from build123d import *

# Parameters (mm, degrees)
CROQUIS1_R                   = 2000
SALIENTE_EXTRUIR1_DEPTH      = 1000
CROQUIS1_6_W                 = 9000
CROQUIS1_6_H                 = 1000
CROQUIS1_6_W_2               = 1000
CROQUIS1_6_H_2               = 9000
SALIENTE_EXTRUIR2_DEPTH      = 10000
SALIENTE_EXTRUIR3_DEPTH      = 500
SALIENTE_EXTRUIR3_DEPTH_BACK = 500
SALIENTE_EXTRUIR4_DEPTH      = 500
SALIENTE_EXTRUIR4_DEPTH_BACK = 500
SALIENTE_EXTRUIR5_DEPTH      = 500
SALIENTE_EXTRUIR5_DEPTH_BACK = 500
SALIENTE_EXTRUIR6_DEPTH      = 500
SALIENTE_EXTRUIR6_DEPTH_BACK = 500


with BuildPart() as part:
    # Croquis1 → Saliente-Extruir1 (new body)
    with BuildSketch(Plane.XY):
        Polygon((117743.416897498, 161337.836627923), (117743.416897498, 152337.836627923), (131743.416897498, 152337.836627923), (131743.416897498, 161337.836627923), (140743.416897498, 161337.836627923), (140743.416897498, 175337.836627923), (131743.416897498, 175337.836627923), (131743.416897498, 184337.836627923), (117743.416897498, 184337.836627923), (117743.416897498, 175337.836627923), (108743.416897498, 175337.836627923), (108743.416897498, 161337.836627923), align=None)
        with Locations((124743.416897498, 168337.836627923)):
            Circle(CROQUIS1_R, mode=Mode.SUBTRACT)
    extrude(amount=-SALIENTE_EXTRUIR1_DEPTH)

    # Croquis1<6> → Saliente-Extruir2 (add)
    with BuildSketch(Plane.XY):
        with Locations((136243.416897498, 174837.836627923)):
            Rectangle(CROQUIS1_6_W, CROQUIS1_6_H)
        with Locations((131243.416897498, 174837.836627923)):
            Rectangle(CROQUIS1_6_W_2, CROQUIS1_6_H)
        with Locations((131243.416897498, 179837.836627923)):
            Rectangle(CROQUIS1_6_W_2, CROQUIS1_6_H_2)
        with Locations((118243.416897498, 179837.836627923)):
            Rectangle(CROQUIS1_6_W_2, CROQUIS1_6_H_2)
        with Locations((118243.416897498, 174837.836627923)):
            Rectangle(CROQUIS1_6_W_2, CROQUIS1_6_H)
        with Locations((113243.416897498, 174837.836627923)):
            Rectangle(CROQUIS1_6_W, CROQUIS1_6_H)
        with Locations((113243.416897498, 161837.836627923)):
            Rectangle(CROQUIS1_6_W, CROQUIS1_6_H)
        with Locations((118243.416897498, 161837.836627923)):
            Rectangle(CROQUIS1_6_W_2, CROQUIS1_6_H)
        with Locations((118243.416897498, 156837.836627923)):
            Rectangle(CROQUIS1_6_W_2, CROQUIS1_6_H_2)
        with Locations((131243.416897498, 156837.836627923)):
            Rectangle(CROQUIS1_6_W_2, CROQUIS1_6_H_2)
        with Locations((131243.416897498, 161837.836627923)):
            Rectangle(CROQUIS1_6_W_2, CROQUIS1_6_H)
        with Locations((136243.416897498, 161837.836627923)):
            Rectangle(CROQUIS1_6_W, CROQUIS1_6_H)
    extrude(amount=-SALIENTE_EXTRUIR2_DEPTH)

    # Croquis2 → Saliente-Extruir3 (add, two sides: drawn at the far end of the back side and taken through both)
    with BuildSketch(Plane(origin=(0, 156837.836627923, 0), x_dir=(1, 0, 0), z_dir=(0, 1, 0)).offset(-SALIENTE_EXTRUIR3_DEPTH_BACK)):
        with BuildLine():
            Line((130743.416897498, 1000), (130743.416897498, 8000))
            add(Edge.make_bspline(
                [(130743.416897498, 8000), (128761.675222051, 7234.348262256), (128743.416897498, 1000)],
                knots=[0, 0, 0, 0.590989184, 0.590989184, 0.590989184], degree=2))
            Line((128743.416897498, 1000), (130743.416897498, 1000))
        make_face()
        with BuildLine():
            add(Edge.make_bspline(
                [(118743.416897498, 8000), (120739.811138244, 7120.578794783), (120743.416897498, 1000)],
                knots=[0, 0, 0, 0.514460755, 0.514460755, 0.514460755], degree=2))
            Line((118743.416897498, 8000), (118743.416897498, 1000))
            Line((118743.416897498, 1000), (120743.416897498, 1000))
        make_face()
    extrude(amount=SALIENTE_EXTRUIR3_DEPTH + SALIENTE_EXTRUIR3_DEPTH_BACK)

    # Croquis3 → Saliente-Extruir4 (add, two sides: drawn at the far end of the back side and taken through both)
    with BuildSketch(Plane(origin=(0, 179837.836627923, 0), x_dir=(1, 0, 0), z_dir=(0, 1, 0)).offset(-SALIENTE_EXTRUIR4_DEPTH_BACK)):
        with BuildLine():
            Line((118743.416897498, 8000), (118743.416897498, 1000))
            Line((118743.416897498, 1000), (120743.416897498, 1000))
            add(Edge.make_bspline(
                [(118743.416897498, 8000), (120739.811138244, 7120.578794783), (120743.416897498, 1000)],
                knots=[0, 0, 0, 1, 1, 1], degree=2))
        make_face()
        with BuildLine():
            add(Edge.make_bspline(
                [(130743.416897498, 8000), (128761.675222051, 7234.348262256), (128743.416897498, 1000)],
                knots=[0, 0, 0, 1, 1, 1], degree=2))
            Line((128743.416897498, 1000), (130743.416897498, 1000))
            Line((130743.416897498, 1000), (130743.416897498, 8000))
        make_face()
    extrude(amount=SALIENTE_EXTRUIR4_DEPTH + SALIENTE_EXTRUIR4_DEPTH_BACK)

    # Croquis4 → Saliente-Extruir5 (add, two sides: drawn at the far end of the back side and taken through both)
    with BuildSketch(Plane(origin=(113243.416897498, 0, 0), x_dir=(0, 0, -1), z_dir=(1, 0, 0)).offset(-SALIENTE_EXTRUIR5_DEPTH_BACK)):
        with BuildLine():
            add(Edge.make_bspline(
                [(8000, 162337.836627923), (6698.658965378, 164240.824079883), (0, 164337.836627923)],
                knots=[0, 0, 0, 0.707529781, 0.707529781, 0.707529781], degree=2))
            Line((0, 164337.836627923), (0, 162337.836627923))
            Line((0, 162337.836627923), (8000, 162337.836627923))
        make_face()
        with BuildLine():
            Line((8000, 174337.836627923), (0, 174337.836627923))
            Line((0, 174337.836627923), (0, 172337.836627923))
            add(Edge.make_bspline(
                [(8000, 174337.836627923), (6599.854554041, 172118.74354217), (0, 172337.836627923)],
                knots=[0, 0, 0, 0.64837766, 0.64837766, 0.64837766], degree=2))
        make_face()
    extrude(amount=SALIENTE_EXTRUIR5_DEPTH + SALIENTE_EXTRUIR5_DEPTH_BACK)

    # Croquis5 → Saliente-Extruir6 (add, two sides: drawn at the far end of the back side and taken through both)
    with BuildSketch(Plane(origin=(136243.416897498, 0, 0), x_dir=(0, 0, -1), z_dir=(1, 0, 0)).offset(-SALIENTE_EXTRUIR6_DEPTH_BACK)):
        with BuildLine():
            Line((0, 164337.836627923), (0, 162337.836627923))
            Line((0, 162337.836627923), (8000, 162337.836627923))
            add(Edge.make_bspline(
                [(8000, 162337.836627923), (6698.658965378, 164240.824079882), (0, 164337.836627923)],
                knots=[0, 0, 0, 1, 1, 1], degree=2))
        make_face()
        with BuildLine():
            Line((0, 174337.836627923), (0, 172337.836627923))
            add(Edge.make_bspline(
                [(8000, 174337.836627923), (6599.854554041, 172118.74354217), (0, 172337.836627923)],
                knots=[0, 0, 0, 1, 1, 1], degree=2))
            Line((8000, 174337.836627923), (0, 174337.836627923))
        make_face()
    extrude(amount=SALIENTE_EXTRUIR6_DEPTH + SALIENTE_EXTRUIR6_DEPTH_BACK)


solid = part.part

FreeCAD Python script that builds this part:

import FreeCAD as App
import Part
import Sketcher

V = App.Vector


def add_polygon(sketch, points):
    """Adds a closed chain of lines whose ends are joined by coincident constraints."""
    first, n = sketch.GeometryCount, len(points)
    for a, b in zip(points, points[1:] + points[:1]):
        sketch.addGeometry(Part.LineSegment(App.Vector(*a, 0), App.Vector(*b, 0)), False)
    for i in range(n):
        sketch.addConstraint(Sketcher.Constraint("Coincident", first + i, 2, first + (i + 1) % n, 1))

doc = App.newDocument("Part")
body = doc.addObject("PartDesign::Body", "Body")

sketch1 = doc.addObject("Sketcher::SketchObject", "Sketch")
body.addObject(sketch1)
sketch1.AttachmentSupport = (doc.XY_Plane, [""])
sketch1.MapMode = "FlatFace"
add_polygon(sketch1, [(117743.416897, 161337.836628), (117743.416897, 152337.836628), (131743.416897, 152337.836628), (131743.416897, 161337.836628), (140743.416897, 161337.836628), (140743.416897, 175337.836628), (131743.416897, 175337.836628), (131743.416897, 184337.836628), (117743.416897, 184337.836628), (117743.416897, 175337.836628), (108743.416897, 175337.836628), (108743.416897, 161337.836628)])
sketch1.addGeometry(Part.Circle(V(124743.416897, 168337.836628, 0), V(0, 0, 1), 2000), False)
sketch1.addConstraint([
    Sketcher.Constraint("Vertical", 0),
    Sketcher.Constraint("Horizontal", 1),
    Sketcher.Constraint("Vertical", 2),
    Sketcher.Constraint("Horizontal", 3),
    Sketcher.Constraint("Vertical", 4),
    Sketcher.Constraint("Horizontal", 5),
    Sketcher.Constraint("Vertical", 6),
    Sketcher.Constraint("Horizontal", 7),
    Sketcher.Constraint("Vertical", 8),
    Sketcher.Constraint("Horizontal", 9),
    Sketcher.Constraint("Vertical", 10),
    Sketcher.Constraint("Horizontal", 11),
    Sketcher.Constraint("Horizontal", 5, 2, 8, 2),
    Sketcher.Constraint("Horizontal", 3, 2, 10, 2),
    Sketcher.Constraint("Vertical", 2, 2, 5, 2),
    Sketcher.Constraint("Vertical", 0, 2, 7, 2),
    Sketcher.Constraint("Equal", 5, 9),
    Sketcher.Constraint("Equal", 11, 0),
    Sketcher.Constraint("Equal", 7, 4),
    Sketcher.Constraint("Equal", 2, 6),
    Sketcher.Constraint("Diameter", 12, 4000.0),
    Sketcher.Constraint("DistanceX", 1, 1, 1, 2, 14000.0),
    Sketcher.Constraint("DistanceX", 3, 1, 3, 2, 9000.0),
    Sketcher.Constraint("DistanceX", 0, 2, 12, 3, 7000.0),
    Sketcher.Constraint("DistanceY", 0, 2, 12, 3, 16000.0),
    Sketcher.Constraint("DistanceX", -1, 1, 12, 3, 124743.416897),
    Sketcher.Constraint("DistanceY", -1, 1, 12, 3, 168337.836628),
])
pad1 = doc.addObject("PartDesign::Pad", "Pad")
body.addObject(pad1)
pad1.Profile = sketch1
pad1.Length = 1000
pad1.Reversed = True

sketch2 = doc.addObject("Sketcher::SketchObject", "Sketch001")
body.addObject(sketch2)
sketch2.AttachmentSupport = (doc.XY_Plane, [""])
sketch2.MapMode = "FlatFace"
add_polygon(sketch2, [(140743.416897, 174337.836628), (140743.416897, 175337.836628), (131743.416897, 175337.836628), (131743.416897, 184337.836628), (130743.416897, 184337.836628), (130743.416897, 174337.836628)])
add_polygon(sketch2, [(117743.416897, 184337.836628), (117743.416897, 175337.836628), (108743.416897, 175337.836628), (108743.416897, 174337.836628), (118743.416897, 174337.836628), (118743.416897, 184337.836628)])
add_polygon(sketch2, [(108743.416897, 162337.836628), (108743.416897, 161337.836628), (117743.416897, 161337.836628), (117743.416897, 152337.836628), (118743.416897, 152337.836628), (118743.416897, 162337.836628)])
add_polygon(sketch2, [(130743.416897, 152337.836628), (131743.416897, 152337.836628), (131743.416897, 161337.836628), (140743.416897, 161337.836628), (140743.416897, 162337.836628), (130743.416897, 162337.836628)])
sketch2.addConstraint([
    Sketcher.Constraint("Vertical", 0),
    Sketcher.Constraint("Horizontal", 1),
    Sketcher.Constraint("Vertical", 2),
    Sketcher.Constraint("Horizontal", 3),
    Sketcher.Constraint("Vertical", 4),
    Sketcher.Constraint("Horizontal", 5),
    Sketcher.Constraint("Vertical", 6),
    Sketcher.Constraint("Horizontal", 7),
    Sketcher.Constraint("Vertical", 8),
    Sketcher.Constraint("Horizontal", 9),
    Sketcher.Constraint("Vertical", 10),
    Sketcher.Constraint("Horizontal", 11),
    Sketcher.Constraint("Vertical", 12),
    Sketcher.Constraint("Horizontal", 13),
    Sketcher.Constraint("Vertical", 14),
    Sketcher.Constraint("Horizontal", 15),
    Sketcher.Constraint("Vertical", 16),
    Sketcher.Constraint("Horizontal", 17),
    Sketcher.Constraint("Horizontal", 18),
    Sketcher.Constraint("Vertical", 19),
    Sketcher.Constraint("Horizontal", 20),
    Sketcher.Constraint("Vertical", 21),
    Sketcher.Constraint("Horizontal", 22),
    Sketcher.Constraint("Vertical", 23),
    Sketcher.Constraint("Horizontal", 1, 2, 6, 2),
    Sketcher.Constraint("Horizontal", 5, 2, 8, 2),
    Sketcher.Constraint("Horizontal", 3, 2, 10, 2),
    Sketcher.Constraint("Horizontal", 15, 2, 18, 2),
    Sketcher.Constraint("Horizontal", 13, 2, 19, 2),
    Sketcher.Constraint("Horizontal", 17, 2, 21, 2),
    Sketcher.Constraint("Vertical", 8, 2, 12, 2),
    Sketcher.Constraint("Vertical", 11, 2, 13, 2),
    Sketcher.Constraint("Vertical", 10, 2, 15, 2),
    Sketcher.Constraint("Vertical", 2, 2, 18, 2),
    Sketcher.Constraint("Vertical", 5, 2, 20, 2),
    Sketcher.Constraint("Vertical", 4, 2, 22, 2),
    Sketcher.Constraint("Equal", 1, 7),
    Sketcher.Constraint("Equal", 5, 9),
    Sketcher.Constraint("Equal", 18, 0),
    Sketcher.Constraint("Equal", 20, 2),
    Sketcher.Constraint("Equal", 8, 12),
    Sketcher.Constraint("Equal", 6, 14),
    Sketcher.Constraint("DistanceX", 1, 2, 1, 1, 9000.0),
    Sketcher.Constraint("DistanceX", 3, 2, 3, 1, 1000.0),
    Sketcher.Constraint("DistanceX", 6, 2, 4, 2, 13000.0),
    Sketcher.Constraint("DistanceY", 12, 2, 8, 2, 13000.0),
    Sketcher.Constraint("DistanceX", -1, 1, 0, 2, 140743.416897),
    Sketcher.Constraint("DistanceY", -1, 1, 0, 2, 175337.836628),
])
pad2 = doc.addObject("PartDesign::Pad", "Pad001")
body.addObject(pad2)
pad2.Profile = sketch2
pad2.Length = 10000
pad2.Reversed = True

sketch3 = doc.addObject("Sketcher::SketchObject", "Sketch002")
body.addObject(sketch3)
sketch3.AttachmentSupport = (doc.XZ_Plane, [""])
sketch3.MapMode = "FlatFace"
sketch3.AttachmentOffset = App.Placement(V(0, 0, -156837.836628), App.Rotation())
sketch3.addGeometry([
    Part.LineSegment(V(130743.416897, -1000, 0), V(130743.416897, -8000, 0)),
    Part.BSplineCurve([V(130743.416897, -8000, 0), V(128761.675222, -7234.348262, 0), V(128743.416897, -1000, 0)], [3, 3], [0, 0.590989184], False, 2, [1, 1, 1], False),
    Part.LineSegment(V(128743.416897, -1000, 0), V(130743.416897, -1000, 0)),
    Part.BSplineCurve([V(118743.416897, -8000, 0), V(120739.811138, -7120.578795, 0), V(120743.416897, -1000, 0)], [3, 3], [0, 0.514460755], False, 2, [1, 1, 1], False),
    Part.LineSegment(V(118743.416897, -8000, 0), V(118743.416897, -1000, 0)),
    Part.LineSegment(V(118743.416897, -1000, 0), V(120743.416897, -1000, 0)),
], False)
sketch3.addConstraint([
    Sketcher.Constraint("Block", 1),
    Sketcher.Constraint("Block", 3),
    Sketcher.Constraint("Coincident", 0, 2, 1, 1),
    Sketcher.Constraint("Coincident", 1, 2, 2, 1),
    Sketcher.Constraint("Coincident", 2, 2, 0, 1),
    Sketcher.Constraint("Coincident", 3, 1, 4, 1),
    Sketcher.Constraint("Coincident", 4, 2, 5, 1),
    Sketcher.Constraint("Coincident", 5, 2, 3, 2),
    Sketcher.Constraint("Vertical", 0),
    Sketcher.Constraint("Horizontal", 2),
    Sketcher.Constraint("Vertical", 4),
    Sketcher.Constraint("Horizontal", 5),
])
pad3 = doc.addObject("PartDesign::Pad", "Pad002")
body.addObject(pad3)
pad3.Profile = sketch3
pad3.Type = "TwoLengths"
pad3.Length = 500
pad3.Length2 = 500
pad3.Reversed = True

sketch4 = doc.addObject("Sketcher::SketchObject", "Sketch003")
body.addObject(sketch4)
sketch4.AttachmentSupport = (doc.XZ_Plane, [""])
sketch4.MapMode = "FlatFace"
sketch4.AttachmentOffset = App.Placement(V(0, 0, -179837.836628), App.Rotation())
sketch4.addGeometry([
    Part.LineSegment(V(118743.416897, -8000, 0), V(118743.416897, -1000, 0)),
    Part.LineSegment(V(118743.416897, -1000, 0), V(120743.416897, -1000, 0)),
    Part.BSplineCurve([V(118743.416897, -8000, 0), V(120739.811138, -7120.578795, 0), V(120743.416897, -1000, 0)], [3, 3], [0, 1], False, 2, [1, 1, 1], False),
    Part.BSplineCurve([V(130743.416897, -8000, 0), V(128761.675222, -7234.348262, 0), V(128743.416897, -1000, 0)], [3, 3], [0, 1], False, 2, [1, 1, 1], False),
    Part.LineSegment(V(128743.416897, -1000, 0), V(130743.416897, -1000, 0)),
    Part.LineSegment(V(130743.416897, -1000, 0), V(130743.416897, -8000, 0)),
], False)
sketch4.addConstraint([
    Sketcher.Constraint("Block", 2),
    Sketcher.Constraint("Block", 3),
    Sketcher.Constraint("Coincident", 0, 2, 1, 1),
    Sketcher.Constraint("Coincident", 1, 2, 2, 2),
    Sketcher.Constraint("Coincident", 2, 1, 0, 1),
    Sketcher.Constraint("Coincident", 3, 2, 4, 1),
    Sketcher.Constraint("Coincident", 4, 2, 5, 1),
    Sketcher.Constraint("Coincident", 5, 2, 3, 1),
    Sketcher.Constraint("Vertical", 0),
    Sketcher.Constraint("Horizontal", 1),
    Sketcher.Constraint("Horizontal", 4),
    Sketcher.Constraint("Vertical", 5),
])
pad4 = doc.addObject("PartDesign::Pad", "Pad003")
body.addObject(pad4)
pad4.Profile = sketch4
pad4.Type = "TwoLengths"
pad4.Length = 500
pad4.Length2 = 500
pad4.Reversed = True

sketch5 = doc.addObject("Sketcher::SketchObject", "Sketch004")
body.addObject(sketch5)
sketch5.AttachmentSupport = (doc.YZ_Plane, [""])
sketch5.MapMode = "FlatFace"
sketch5.AttachmentOffset = App.Placement(V(0, 0, 113243.416897), App.Rotation())
sketch5.addGeometry([
    Part.BSplineCurve([V(162337.836628, -8000, 0), V(164240.82408, -6698.658965, 0), V(164337.836628, 0, 0)], [3, 3], [0, 0.707529781], False, 2, [1, 1, 1], False),
    Part.LineSegment(V(164337.836628, 0, 0), V(162337.836628, 0, 0)),
    Part.LineSegment(V(162337.836628, 0, 0), V(162337.836628, -8000, 0)),
    Part.LineSegment(V(174337.836628, -8000, 0), V(174337.836628, 0, 0)),
    Part.LineSegment(V(174337.836628, 0, 0), V(172337.836628, 0, 0)),
    Part.BSplineCurve([V(174337.836628, -8000, 0), V(172118.743542, -6599.854554, 0), V(172337.836628, 0, 0)], [3, 3], [0, 0.64837766], False, 2, [1, 1, 1], False),
], False)
sketch5.addConstraint([
    Sketcher.Constraint("Block", 0),
    Sketcher.Constraint("Block", 5),
    Sketcher.Constraint("Coincident", 0, 2, 1, 1),
    Sketcher.Constraint("Coincident", 1, 2, 2, 1),
    Sketcher.Constraint("Coincident", 2, 2, 0, 1),
    Sketcher.Constraint("Coincident", 3, 2, 4, 1),
    Sketcher.Constraint("Coincident", 4, 2, 5, 2),
    Sketcher.Constraint("Coincident", 5, 1, 3, 1),
    Sketcher.Constraint("Horizontal", 1),
    Sketcher.Constraint("Vertical", 2),
    Sketcher.Constraint("Vertical", 3),
    Sketcher.Constraint("Horizontal", 4),
])
pad5 = doc.addObject("PartDesign::Pad", "Pad004")
body.addObject(pad5)
pad5.Profile = sketch5
pad5.Type = "TwoLengths"
pad5.Length = 500
pad5.Length2 = 500

sketch6 = doc.addObject("Sketcher::SketchObject", "Sketch005")
body.addObject(sketch6)
sketch6.AttachmentSupport = (doc.YZ_Plane, [""])
sketch6.MapMode = "FlatFace"
sketch6.AttachmentOffset = App.Placement(V(0, 0, 136243.416897), App.Rotation())
sketch6.addGeometry([
    Part.LineSegment(V(164337.836628, 0, 0), V(162337.836628, 0, 0)),
    Part.LineSegment(V(162337.836628, 0, 0), V(162337.836628, -8000, 0)),
    Part.BSplineCurve([V(162337.836628, -8000, 0), V(164240.82408, -6698.658965, 0), V(164337.836628, 0, 0)], [3, 3], [0, 1], False, 2, [1, 1, 1], False),
    Part.LineSegment(V(174337.836628, 0, 0), V(172337.836628, 0, 0)),
    Part.BSplineCurve([V(174337.836628, -8000, 0), V(172118.743542, -6599.854554, 0), V(172337.836628, 0, 0)], [3, 3], [0, 1], False, 2, [1, 1, 1], False),
    Part.LineSegment(V(174337.836628, -8000, 0), V(174337.836628, 0, 0)),
], False)
sketch6.addConstraint([
    Sketcher.Constraint("Block", 2),
    Sketcher.Constraint("Block", 4),
    Sketcher.Constraint("Coincident", 0, 2, 1, 1),
    Sketcher.Constraint("Coincident", 1, 2, 2, 1),
    Sketcher.Constraint("Coincident", 2, 2, 0, 1),
    Sketcher.Constraint("Coincident", 3, 2, 4, 2),
    Sketcher.Constraint("Coincident", 4, 1, 5, 1),
    Sketcher.Constraint("Coincident", 5, 2, 3, 1),
    Sketcher.Constraint("Horizontal", 0),
    Sketcher.Constraint("Vertical", 1),
    Sketcher.Constraint("Horizontal", 3),
    Sketcher.Constraint("Vertical", 5),
])
pad6 = doc.addObject("PartDesign::Pad", "Pad005")
body.addObject(pad6)
pad6.Profile = sketch6
pad6.Type = "TwoLengths"
pad6.Length = 500
pad6.Length2 = 500

doc.recompute()
